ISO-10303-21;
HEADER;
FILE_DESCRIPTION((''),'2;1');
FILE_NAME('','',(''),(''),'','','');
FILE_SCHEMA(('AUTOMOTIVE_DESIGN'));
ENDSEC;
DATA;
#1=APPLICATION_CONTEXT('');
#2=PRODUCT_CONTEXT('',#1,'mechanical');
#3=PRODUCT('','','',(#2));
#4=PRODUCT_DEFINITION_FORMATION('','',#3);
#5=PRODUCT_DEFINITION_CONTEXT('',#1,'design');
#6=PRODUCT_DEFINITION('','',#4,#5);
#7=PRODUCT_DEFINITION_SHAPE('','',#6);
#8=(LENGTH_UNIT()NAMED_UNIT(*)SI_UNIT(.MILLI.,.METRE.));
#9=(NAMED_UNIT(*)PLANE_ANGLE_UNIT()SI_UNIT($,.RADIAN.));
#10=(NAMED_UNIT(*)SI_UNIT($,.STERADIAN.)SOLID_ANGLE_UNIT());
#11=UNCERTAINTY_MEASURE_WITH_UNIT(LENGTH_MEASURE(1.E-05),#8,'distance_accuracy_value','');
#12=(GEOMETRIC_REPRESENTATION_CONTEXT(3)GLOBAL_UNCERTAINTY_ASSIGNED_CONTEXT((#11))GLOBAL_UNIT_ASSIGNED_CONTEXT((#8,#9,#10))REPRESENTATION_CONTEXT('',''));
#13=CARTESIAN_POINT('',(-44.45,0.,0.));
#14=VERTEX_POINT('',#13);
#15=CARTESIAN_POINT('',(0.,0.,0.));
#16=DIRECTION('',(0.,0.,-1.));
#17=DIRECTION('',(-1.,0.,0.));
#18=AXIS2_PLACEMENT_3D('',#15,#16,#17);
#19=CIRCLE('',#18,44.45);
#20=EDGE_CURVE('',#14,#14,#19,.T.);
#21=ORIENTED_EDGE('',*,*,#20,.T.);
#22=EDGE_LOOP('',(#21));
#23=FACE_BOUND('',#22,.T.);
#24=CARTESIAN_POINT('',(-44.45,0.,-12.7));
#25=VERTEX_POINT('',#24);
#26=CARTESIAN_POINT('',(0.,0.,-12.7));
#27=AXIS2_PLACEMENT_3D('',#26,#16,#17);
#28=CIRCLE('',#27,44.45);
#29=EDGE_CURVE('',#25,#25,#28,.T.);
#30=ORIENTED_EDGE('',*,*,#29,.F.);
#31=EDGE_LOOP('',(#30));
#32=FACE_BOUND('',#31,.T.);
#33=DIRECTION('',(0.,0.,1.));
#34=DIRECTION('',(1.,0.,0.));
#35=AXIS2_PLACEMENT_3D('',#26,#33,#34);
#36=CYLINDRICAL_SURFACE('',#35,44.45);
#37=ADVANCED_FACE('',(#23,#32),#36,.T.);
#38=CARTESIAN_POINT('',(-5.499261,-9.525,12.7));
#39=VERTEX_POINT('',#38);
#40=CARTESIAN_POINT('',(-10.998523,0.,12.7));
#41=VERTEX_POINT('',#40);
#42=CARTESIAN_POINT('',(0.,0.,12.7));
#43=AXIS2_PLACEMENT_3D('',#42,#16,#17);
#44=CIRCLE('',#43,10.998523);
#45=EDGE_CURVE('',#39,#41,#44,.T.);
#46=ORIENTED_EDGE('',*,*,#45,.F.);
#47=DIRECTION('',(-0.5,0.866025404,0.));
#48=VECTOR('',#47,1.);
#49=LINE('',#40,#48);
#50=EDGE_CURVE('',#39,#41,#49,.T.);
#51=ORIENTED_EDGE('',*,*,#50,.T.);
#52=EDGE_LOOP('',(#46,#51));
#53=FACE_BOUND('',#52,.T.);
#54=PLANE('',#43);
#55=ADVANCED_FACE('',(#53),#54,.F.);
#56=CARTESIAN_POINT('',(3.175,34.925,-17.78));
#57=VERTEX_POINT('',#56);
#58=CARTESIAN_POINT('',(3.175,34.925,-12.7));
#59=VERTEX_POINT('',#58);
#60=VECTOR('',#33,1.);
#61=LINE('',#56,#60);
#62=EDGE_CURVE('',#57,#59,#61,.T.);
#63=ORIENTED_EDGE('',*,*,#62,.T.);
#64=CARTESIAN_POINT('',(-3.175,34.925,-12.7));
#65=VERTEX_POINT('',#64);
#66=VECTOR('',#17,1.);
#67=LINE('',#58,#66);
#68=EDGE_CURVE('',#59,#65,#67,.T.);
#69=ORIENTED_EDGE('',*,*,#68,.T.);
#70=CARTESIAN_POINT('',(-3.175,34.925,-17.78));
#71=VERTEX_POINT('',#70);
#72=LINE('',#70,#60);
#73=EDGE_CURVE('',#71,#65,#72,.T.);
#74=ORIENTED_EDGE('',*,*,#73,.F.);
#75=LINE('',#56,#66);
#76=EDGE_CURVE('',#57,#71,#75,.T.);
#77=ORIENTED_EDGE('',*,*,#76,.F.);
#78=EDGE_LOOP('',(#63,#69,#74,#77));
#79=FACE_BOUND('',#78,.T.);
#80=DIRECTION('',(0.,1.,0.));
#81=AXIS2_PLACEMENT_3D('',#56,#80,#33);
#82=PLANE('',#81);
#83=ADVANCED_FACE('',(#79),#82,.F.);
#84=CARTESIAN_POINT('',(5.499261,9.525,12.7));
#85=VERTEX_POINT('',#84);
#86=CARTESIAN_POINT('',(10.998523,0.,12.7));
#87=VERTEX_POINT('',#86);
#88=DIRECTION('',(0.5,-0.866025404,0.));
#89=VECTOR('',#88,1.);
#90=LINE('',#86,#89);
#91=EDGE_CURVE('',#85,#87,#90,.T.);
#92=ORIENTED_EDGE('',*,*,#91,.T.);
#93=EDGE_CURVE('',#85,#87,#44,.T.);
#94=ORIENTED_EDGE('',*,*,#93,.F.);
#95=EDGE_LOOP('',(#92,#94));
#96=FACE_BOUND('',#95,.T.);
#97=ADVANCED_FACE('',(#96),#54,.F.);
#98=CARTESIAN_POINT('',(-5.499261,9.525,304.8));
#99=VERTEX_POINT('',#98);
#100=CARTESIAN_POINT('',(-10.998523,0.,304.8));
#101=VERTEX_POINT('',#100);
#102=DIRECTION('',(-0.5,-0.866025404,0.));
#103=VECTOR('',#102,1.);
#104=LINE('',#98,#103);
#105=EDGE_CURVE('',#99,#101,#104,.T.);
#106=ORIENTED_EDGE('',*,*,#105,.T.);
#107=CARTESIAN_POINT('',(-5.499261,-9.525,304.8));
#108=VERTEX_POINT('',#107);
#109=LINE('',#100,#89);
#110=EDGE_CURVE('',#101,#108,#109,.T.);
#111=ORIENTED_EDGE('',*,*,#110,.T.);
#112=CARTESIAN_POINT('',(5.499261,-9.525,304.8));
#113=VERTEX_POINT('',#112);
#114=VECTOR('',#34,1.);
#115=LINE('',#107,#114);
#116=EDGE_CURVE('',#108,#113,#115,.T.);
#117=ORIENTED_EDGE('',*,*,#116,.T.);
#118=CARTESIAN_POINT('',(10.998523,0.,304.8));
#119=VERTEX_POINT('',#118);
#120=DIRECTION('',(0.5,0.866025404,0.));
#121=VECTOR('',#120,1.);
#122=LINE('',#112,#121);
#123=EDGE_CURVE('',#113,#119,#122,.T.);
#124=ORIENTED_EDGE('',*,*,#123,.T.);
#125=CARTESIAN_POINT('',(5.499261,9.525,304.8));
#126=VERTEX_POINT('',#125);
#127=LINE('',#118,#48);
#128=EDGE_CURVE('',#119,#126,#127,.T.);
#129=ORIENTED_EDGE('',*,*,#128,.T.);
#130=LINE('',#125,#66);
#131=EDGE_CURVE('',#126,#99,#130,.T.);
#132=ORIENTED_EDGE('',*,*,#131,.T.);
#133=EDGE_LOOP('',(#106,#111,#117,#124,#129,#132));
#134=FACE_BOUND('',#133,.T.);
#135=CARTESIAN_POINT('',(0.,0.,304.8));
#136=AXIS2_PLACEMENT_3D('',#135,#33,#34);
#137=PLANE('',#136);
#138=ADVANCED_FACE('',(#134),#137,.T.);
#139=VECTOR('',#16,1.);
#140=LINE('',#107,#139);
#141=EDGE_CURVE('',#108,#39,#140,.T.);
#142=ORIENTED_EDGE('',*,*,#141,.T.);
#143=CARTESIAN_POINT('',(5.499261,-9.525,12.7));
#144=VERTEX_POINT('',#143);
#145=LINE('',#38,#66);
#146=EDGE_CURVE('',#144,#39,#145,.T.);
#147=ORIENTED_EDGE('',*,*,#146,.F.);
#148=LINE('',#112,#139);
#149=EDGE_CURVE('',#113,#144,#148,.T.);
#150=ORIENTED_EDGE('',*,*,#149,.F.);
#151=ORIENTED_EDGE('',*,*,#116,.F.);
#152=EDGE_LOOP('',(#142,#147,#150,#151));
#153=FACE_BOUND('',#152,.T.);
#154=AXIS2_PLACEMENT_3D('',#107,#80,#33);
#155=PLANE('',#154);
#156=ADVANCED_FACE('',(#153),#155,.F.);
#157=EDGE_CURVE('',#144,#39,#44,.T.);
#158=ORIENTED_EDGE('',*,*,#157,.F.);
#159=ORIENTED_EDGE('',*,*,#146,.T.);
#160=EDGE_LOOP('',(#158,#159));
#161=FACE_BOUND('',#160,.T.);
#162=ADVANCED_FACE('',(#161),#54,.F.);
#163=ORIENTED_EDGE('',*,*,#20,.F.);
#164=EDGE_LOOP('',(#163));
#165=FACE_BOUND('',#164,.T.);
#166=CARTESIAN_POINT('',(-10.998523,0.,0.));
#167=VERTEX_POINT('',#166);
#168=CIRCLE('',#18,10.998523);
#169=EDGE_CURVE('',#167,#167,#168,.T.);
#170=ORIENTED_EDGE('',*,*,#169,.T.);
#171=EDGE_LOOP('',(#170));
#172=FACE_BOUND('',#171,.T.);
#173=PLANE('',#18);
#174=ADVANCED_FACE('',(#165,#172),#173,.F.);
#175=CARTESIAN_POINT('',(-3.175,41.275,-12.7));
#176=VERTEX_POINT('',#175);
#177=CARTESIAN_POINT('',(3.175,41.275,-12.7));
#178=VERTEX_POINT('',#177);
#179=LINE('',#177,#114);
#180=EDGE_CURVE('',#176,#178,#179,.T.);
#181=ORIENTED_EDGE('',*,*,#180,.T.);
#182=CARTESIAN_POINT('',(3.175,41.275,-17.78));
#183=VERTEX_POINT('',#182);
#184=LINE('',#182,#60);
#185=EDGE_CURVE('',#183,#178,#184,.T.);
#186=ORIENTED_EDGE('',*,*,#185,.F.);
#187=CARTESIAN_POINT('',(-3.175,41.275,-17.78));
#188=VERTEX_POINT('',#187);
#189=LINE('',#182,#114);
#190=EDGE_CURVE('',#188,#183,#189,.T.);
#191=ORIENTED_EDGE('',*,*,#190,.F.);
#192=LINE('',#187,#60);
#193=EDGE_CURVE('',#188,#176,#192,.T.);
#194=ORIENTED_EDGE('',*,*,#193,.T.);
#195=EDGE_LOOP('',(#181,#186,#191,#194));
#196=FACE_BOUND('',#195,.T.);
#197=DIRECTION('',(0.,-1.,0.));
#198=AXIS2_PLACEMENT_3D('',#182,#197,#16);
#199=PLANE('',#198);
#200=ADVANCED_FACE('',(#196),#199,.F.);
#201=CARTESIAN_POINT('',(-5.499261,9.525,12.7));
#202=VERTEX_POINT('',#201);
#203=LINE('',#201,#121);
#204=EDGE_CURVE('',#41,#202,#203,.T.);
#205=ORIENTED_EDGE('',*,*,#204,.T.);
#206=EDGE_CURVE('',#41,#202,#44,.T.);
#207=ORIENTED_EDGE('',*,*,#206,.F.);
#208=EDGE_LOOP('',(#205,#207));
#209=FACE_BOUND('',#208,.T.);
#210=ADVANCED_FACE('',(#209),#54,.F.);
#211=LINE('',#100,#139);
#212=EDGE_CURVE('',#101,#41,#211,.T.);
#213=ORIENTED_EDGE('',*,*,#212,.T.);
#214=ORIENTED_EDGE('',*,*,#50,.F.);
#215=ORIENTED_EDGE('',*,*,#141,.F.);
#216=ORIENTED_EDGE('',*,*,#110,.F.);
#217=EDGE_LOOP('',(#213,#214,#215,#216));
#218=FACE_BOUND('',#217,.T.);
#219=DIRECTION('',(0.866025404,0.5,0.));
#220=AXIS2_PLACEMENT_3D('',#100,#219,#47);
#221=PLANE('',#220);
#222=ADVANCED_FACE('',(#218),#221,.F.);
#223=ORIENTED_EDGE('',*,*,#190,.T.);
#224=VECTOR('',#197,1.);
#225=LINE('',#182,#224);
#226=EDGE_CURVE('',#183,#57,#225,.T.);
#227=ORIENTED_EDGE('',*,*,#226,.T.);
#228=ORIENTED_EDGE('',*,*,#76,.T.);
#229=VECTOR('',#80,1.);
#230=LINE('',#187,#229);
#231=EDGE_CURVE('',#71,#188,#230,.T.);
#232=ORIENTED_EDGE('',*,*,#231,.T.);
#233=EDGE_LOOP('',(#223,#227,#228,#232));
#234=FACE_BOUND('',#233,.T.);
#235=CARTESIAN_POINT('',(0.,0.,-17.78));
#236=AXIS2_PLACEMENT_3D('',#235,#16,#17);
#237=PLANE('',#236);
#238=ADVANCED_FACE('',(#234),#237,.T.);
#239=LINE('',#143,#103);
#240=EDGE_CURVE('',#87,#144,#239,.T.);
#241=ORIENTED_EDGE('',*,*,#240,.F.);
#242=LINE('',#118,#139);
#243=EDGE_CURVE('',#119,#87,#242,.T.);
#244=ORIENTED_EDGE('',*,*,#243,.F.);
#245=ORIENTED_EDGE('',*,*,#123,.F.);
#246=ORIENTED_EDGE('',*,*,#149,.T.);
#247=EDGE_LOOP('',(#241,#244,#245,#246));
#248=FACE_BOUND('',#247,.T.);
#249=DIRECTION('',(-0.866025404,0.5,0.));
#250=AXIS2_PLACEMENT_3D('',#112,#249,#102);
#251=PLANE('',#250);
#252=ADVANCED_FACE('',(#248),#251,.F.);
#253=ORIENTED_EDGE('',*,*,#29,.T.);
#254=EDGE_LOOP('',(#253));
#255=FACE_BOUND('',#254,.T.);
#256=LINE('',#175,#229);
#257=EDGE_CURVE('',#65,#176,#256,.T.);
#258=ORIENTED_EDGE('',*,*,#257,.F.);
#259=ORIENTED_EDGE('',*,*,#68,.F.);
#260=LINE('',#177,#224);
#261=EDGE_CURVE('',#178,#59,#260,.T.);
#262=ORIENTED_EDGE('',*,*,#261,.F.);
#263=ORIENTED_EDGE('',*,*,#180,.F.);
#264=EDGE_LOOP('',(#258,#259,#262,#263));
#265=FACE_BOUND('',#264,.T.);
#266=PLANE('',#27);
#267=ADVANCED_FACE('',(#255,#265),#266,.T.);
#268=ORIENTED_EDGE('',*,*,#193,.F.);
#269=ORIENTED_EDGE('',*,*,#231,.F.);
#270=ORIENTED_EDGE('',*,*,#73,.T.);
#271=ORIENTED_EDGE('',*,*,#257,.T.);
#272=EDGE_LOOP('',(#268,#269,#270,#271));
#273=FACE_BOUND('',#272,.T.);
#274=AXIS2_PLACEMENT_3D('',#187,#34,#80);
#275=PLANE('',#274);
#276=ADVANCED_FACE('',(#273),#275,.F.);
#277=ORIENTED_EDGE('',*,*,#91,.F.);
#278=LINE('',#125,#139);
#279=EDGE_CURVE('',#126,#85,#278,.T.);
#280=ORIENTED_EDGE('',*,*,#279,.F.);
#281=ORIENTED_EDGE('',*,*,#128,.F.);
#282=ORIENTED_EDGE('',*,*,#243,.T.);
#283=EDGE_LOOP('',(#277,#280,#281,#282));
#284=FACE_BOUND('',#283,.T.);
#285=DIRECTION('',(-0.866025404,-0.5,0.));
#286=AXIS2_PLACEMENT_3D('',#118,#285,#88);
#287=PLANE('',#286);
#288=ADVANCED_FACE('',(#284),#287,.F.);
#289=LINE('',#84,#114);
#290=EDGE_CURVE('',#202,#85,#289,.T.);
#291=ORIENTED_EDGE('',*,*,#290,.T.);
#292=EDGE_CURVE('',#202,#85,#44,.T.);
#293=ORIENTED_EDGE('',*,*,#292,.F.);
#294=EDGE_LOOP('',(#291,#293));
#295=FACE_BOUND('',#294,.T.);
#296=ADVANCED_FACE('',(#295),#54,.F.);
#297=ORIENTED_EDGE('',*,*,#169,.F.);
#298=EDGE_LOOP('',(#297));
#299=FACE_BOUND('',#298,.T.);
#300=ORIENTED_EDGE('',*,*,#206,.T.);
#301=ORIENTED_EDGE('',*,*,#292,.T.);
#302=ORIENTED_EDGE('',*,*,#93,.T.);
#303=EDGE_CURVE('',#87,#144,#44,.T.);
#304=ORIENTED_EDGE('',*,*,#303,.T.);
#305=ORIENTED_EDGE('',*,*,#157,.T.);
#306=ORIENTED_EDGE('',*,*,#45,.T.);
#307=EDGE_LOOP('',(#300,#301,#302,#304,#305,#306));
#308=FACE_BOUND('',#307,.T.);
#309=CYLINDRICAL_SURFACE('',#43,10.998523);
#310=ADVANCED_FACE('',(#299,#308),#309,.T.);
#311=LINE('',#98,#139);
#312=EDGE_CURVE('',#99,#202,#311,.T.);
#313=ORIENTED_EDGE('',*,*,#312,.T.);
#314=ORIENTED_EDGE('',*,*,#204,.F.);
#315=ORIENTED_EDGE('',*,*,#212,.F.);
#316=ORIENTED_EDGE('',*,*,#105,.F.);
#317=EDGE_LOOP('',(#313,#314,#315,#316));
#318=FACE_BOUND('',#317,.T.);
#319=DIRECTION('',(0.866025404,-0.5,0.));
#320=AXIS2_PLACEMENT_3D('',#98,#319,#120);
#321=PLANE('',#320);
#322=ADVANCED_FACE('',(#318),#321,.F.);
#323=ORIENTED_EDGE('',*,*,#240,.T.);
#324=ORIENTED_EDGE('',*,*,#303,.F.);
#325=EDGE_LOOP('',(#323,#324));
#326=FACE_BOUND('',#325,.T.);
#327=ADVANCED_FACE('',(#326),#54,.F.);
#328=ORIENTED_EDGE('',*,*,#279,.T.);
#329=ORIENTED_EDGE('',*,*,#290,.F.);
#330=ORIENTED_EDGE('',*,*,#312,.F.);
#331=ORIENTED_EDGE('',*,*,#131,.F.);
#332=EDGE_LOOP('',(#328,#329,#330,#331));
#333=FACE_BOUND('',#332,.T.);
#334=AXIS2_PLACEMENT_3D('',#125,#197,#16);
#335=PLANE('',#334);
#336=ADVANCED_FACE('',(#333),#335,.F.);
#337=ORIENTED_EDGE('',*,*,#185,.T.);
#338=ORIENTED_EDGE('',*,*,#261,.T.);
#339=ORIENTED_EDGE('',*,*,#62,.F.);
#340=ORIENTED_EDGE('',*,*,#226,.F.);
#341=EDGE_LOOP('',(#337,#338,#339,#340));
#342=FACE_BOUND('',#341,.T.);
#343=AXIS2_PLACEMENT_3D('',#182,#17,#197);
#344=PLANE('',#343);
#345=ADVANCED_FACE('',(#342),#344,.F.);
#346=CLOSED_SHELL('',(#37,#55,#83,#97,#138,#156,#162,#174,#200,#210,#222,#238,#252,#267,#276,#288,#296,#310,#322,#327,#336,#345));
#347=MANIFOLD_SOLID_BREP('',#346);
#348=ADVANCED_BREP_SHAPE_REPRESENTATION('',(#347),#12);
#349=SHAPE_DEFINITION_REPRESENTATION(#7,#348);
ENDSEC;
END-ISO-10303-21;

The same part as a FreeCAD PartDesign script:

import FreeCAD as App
import Part
import Sketcher
from FreeCAD import Vector
Q = App.Units.Quantity

doc = App.newDocument("Part")
body = doc.addObject("PartDesign::Body", "Body")

sketch1 = body.newObject("Sketcher::SketchObject", "Sketch")
sketch1.AttachmentSupport = (doc.getObject("XY_Plane"), [""])
sketch1.MapMode = "FlatFace"
sketch1.addGeometry(Part.LineSegment(Vector(5, 10, 0), Vector(-5, 10, 0)), False)
sketch1.addGeometry(Part.LineSegment(Vector(-5, 10, 0), Vector(-11, 0, 0)), False)
sketch1.addGeometry(Part.LineSegment(Vector(-11, 0, 0), Vector(-5, -10, 0)), False)
sketch1.addGeometry(Part.LineSegment(Vector(-5, -10, 0), Vector(5, -10, 0)), False)
sketch1.addGeometry(Part.LineSegment(Vector(5, -10, 0), Vector(11, 0, 0)), False)
sketch1.addGeometry(Part.LineSegment(Vector(11, 0, 0), Vector(5, 10, 0)), False)
sketch1.addConstraint(Sketcher.Constraint("Coincident", 0, 2, 1, 1))
sketch1.addConstraint(Sketcher.Constraint("Coincident", 1, 2, 2, 1))
sketch1.addConstraint(Sketcher.Constraint("Coincident", 2, 2, 3, 1))
sketch1.addConstraint(Sketcher.Constraint("Coincident", 3, 2, 4, 1))
sketch1.addConstraint(Sketcher.Constraint("Coincident", 4, 2, 5, 1))
sketch1.addConstraint(Sketcher.Constraint("Coincident", 5, 2, 0, 1))
sketch1.addConstraint(Sketcher.Constraint("Horizontal", 0))
sketch1.addConstraint(Sketcher.Constraint("Horizontal", 3))
sketch1.addConstraint(Sketcher.Constraint("Symmetric", 0, 2, 3, 2, -1, 1))
sketch1.addConstraint(Sketcher.Constraint("Symmetric", 1, 2, 4, 2, -1, 1))
sketch1.addConstraint(Sketcher.Constraint("PointOnObject", 1, 2, -1))
sketch1.addConstraint(Sketcher.Constraint("Parallel", 2, 5))
sketch1.addConstraint(Sketcher.Constraint("Vertical", 0, 2, 2, 2))
sketch1.addConstraint(Sketcher.Constraint("Angle", 1, Q("-120 deg")))
sketch1.addConstraint(Sketcher.Constraint("DistanceY", 2, 2, 0, 2, Q("0.75 in")))
sketch1.addConstraint(Sketcher.Constraint("DistanceX", 0, 2, 0, 1, 10.998523))
pad1 = body.newObject("PartDesign::Pad", "Pad")
pad1.Profile = sketch1
pad1.Length = Q("12 in")

sketch2 = body.newObject("Sketcher::SketchObject", "Sketch001")
sketch2.AttachmentSupport = (doc.getObject("XY_Plane"), [""])
sketch2.MapMode = "FlatFace"
sketch2.addGeometry(Part.Circle(Vector(0, 0, 0), Vector(0, 0, 1), 11), False)
sketch2.addConstraint(Sketcher.Constraint("Coincident", 0, 3, -1, 1))
sketch2.addConstraint(Sketcher.Constraint("Diameter", 0, 21.997045))
pad2 = body.newObject("PartDesign::Pad", "Pad001")
pad2.Profile = sketch2
pad2.Length = Q("0.5 in")

sketch3 = body.newObject("Sketcher::SketchObject", "Sketch002")
sketch3.AttachmentSupport = (doc.getObject("XY_Plane"), [""])
sketch3.MapMode = "FlatFace"
sketch3.addGeometry(Part.Circle(Vector(0, 0, 0), Vector(0, 0, 1), 44), False)
sketch3.addConstraint(Sketcher.Constraint("Coincident", 0, 3, -1, 1))
sketch3.addConstraint(Sketcher.Constraint("Diameter", 0, Q("3.5 in")))
pad3 = body.newObject("PartDesign::Pad", "Pad002")
pad3.Profile = sketch3
pad3.Length = Q("0.5 in")
pad3.Reversed = True

sketch4 = body.newObject("Sketcher::SketchObject", "Sketch003")
sketch4.AttachmentSupport = (doc.getObject("XY_Plane"), [""])
sketch4.MapMode = "FlatFace"
sketch4.AttachmentOffset = App.Placement(Vector(0, 0, -0.5 * 25.4), App.Rotation())
sketch4.addGeometry(Part.LineSegment(Vector(3, 41, 0), Vector(3, 35, 0)), False)
sketch4.addGeometry(Part.LineSegment(Vector(3, 35, 0), Vector(-3, 35, 0)), False)
sketch4.addGeometry(Part.LineSegment(Vector(-3, 35, 0), Vector(-3, 41, 0)), False)
sketch4.addGeometry(Part.LineSegment(Vector(-3, 41, 0), Vector(3, 41, 0)), False)
sketch4.addConstraint(Sketcher.Constraint("Coincident", 0, 2, 1, 1))
sketch4.addConstraint(Sketcher.Constraint("Coincident", 1, 2, 2, 1))
sketch4.addConstraint(Sketcher.Constraint("Coincident", 2, 2, 3, 1))
sketch4.addConstraint(Sketcher.Constraint("Coincident", 3, 2, 0, 1))
sketch4.addConstraint(Sketcher.Constraint("Vertical", 0))
sketch4.addConstraint(Sketcher.Constraint("Horizontal", 1))
sketch4.addConstraint(Sketcher.Constraint("Vertical", 2))
sketch4.addConstraint(Sketcher.Constraint("Horizontal", 3))
sketch4.addConstraint(Sketcher.Constraint("Equal", 3, 0))
sketch4.addConstraint(Sketcher.Constraint("DistanceX", 1, 2, 1, 1, Q("0.25 in")))
sketch4.addConstraint(Sketcher.Constraint("DistanceX", -1, 1, 0, 2, Q("0.125 in")))
sketch4.addConstraint(Sketcher.Constraint("DistanceY", -1, 1, 0, 2, Q("1.375 in")))
pad4 = body.newObject("PartDesign::Pad", "Pad003")
pad4.Profile = sketch4
pad4.Length = Q("0.2 in")
pad4.Reversed = True

doc.recompute()
